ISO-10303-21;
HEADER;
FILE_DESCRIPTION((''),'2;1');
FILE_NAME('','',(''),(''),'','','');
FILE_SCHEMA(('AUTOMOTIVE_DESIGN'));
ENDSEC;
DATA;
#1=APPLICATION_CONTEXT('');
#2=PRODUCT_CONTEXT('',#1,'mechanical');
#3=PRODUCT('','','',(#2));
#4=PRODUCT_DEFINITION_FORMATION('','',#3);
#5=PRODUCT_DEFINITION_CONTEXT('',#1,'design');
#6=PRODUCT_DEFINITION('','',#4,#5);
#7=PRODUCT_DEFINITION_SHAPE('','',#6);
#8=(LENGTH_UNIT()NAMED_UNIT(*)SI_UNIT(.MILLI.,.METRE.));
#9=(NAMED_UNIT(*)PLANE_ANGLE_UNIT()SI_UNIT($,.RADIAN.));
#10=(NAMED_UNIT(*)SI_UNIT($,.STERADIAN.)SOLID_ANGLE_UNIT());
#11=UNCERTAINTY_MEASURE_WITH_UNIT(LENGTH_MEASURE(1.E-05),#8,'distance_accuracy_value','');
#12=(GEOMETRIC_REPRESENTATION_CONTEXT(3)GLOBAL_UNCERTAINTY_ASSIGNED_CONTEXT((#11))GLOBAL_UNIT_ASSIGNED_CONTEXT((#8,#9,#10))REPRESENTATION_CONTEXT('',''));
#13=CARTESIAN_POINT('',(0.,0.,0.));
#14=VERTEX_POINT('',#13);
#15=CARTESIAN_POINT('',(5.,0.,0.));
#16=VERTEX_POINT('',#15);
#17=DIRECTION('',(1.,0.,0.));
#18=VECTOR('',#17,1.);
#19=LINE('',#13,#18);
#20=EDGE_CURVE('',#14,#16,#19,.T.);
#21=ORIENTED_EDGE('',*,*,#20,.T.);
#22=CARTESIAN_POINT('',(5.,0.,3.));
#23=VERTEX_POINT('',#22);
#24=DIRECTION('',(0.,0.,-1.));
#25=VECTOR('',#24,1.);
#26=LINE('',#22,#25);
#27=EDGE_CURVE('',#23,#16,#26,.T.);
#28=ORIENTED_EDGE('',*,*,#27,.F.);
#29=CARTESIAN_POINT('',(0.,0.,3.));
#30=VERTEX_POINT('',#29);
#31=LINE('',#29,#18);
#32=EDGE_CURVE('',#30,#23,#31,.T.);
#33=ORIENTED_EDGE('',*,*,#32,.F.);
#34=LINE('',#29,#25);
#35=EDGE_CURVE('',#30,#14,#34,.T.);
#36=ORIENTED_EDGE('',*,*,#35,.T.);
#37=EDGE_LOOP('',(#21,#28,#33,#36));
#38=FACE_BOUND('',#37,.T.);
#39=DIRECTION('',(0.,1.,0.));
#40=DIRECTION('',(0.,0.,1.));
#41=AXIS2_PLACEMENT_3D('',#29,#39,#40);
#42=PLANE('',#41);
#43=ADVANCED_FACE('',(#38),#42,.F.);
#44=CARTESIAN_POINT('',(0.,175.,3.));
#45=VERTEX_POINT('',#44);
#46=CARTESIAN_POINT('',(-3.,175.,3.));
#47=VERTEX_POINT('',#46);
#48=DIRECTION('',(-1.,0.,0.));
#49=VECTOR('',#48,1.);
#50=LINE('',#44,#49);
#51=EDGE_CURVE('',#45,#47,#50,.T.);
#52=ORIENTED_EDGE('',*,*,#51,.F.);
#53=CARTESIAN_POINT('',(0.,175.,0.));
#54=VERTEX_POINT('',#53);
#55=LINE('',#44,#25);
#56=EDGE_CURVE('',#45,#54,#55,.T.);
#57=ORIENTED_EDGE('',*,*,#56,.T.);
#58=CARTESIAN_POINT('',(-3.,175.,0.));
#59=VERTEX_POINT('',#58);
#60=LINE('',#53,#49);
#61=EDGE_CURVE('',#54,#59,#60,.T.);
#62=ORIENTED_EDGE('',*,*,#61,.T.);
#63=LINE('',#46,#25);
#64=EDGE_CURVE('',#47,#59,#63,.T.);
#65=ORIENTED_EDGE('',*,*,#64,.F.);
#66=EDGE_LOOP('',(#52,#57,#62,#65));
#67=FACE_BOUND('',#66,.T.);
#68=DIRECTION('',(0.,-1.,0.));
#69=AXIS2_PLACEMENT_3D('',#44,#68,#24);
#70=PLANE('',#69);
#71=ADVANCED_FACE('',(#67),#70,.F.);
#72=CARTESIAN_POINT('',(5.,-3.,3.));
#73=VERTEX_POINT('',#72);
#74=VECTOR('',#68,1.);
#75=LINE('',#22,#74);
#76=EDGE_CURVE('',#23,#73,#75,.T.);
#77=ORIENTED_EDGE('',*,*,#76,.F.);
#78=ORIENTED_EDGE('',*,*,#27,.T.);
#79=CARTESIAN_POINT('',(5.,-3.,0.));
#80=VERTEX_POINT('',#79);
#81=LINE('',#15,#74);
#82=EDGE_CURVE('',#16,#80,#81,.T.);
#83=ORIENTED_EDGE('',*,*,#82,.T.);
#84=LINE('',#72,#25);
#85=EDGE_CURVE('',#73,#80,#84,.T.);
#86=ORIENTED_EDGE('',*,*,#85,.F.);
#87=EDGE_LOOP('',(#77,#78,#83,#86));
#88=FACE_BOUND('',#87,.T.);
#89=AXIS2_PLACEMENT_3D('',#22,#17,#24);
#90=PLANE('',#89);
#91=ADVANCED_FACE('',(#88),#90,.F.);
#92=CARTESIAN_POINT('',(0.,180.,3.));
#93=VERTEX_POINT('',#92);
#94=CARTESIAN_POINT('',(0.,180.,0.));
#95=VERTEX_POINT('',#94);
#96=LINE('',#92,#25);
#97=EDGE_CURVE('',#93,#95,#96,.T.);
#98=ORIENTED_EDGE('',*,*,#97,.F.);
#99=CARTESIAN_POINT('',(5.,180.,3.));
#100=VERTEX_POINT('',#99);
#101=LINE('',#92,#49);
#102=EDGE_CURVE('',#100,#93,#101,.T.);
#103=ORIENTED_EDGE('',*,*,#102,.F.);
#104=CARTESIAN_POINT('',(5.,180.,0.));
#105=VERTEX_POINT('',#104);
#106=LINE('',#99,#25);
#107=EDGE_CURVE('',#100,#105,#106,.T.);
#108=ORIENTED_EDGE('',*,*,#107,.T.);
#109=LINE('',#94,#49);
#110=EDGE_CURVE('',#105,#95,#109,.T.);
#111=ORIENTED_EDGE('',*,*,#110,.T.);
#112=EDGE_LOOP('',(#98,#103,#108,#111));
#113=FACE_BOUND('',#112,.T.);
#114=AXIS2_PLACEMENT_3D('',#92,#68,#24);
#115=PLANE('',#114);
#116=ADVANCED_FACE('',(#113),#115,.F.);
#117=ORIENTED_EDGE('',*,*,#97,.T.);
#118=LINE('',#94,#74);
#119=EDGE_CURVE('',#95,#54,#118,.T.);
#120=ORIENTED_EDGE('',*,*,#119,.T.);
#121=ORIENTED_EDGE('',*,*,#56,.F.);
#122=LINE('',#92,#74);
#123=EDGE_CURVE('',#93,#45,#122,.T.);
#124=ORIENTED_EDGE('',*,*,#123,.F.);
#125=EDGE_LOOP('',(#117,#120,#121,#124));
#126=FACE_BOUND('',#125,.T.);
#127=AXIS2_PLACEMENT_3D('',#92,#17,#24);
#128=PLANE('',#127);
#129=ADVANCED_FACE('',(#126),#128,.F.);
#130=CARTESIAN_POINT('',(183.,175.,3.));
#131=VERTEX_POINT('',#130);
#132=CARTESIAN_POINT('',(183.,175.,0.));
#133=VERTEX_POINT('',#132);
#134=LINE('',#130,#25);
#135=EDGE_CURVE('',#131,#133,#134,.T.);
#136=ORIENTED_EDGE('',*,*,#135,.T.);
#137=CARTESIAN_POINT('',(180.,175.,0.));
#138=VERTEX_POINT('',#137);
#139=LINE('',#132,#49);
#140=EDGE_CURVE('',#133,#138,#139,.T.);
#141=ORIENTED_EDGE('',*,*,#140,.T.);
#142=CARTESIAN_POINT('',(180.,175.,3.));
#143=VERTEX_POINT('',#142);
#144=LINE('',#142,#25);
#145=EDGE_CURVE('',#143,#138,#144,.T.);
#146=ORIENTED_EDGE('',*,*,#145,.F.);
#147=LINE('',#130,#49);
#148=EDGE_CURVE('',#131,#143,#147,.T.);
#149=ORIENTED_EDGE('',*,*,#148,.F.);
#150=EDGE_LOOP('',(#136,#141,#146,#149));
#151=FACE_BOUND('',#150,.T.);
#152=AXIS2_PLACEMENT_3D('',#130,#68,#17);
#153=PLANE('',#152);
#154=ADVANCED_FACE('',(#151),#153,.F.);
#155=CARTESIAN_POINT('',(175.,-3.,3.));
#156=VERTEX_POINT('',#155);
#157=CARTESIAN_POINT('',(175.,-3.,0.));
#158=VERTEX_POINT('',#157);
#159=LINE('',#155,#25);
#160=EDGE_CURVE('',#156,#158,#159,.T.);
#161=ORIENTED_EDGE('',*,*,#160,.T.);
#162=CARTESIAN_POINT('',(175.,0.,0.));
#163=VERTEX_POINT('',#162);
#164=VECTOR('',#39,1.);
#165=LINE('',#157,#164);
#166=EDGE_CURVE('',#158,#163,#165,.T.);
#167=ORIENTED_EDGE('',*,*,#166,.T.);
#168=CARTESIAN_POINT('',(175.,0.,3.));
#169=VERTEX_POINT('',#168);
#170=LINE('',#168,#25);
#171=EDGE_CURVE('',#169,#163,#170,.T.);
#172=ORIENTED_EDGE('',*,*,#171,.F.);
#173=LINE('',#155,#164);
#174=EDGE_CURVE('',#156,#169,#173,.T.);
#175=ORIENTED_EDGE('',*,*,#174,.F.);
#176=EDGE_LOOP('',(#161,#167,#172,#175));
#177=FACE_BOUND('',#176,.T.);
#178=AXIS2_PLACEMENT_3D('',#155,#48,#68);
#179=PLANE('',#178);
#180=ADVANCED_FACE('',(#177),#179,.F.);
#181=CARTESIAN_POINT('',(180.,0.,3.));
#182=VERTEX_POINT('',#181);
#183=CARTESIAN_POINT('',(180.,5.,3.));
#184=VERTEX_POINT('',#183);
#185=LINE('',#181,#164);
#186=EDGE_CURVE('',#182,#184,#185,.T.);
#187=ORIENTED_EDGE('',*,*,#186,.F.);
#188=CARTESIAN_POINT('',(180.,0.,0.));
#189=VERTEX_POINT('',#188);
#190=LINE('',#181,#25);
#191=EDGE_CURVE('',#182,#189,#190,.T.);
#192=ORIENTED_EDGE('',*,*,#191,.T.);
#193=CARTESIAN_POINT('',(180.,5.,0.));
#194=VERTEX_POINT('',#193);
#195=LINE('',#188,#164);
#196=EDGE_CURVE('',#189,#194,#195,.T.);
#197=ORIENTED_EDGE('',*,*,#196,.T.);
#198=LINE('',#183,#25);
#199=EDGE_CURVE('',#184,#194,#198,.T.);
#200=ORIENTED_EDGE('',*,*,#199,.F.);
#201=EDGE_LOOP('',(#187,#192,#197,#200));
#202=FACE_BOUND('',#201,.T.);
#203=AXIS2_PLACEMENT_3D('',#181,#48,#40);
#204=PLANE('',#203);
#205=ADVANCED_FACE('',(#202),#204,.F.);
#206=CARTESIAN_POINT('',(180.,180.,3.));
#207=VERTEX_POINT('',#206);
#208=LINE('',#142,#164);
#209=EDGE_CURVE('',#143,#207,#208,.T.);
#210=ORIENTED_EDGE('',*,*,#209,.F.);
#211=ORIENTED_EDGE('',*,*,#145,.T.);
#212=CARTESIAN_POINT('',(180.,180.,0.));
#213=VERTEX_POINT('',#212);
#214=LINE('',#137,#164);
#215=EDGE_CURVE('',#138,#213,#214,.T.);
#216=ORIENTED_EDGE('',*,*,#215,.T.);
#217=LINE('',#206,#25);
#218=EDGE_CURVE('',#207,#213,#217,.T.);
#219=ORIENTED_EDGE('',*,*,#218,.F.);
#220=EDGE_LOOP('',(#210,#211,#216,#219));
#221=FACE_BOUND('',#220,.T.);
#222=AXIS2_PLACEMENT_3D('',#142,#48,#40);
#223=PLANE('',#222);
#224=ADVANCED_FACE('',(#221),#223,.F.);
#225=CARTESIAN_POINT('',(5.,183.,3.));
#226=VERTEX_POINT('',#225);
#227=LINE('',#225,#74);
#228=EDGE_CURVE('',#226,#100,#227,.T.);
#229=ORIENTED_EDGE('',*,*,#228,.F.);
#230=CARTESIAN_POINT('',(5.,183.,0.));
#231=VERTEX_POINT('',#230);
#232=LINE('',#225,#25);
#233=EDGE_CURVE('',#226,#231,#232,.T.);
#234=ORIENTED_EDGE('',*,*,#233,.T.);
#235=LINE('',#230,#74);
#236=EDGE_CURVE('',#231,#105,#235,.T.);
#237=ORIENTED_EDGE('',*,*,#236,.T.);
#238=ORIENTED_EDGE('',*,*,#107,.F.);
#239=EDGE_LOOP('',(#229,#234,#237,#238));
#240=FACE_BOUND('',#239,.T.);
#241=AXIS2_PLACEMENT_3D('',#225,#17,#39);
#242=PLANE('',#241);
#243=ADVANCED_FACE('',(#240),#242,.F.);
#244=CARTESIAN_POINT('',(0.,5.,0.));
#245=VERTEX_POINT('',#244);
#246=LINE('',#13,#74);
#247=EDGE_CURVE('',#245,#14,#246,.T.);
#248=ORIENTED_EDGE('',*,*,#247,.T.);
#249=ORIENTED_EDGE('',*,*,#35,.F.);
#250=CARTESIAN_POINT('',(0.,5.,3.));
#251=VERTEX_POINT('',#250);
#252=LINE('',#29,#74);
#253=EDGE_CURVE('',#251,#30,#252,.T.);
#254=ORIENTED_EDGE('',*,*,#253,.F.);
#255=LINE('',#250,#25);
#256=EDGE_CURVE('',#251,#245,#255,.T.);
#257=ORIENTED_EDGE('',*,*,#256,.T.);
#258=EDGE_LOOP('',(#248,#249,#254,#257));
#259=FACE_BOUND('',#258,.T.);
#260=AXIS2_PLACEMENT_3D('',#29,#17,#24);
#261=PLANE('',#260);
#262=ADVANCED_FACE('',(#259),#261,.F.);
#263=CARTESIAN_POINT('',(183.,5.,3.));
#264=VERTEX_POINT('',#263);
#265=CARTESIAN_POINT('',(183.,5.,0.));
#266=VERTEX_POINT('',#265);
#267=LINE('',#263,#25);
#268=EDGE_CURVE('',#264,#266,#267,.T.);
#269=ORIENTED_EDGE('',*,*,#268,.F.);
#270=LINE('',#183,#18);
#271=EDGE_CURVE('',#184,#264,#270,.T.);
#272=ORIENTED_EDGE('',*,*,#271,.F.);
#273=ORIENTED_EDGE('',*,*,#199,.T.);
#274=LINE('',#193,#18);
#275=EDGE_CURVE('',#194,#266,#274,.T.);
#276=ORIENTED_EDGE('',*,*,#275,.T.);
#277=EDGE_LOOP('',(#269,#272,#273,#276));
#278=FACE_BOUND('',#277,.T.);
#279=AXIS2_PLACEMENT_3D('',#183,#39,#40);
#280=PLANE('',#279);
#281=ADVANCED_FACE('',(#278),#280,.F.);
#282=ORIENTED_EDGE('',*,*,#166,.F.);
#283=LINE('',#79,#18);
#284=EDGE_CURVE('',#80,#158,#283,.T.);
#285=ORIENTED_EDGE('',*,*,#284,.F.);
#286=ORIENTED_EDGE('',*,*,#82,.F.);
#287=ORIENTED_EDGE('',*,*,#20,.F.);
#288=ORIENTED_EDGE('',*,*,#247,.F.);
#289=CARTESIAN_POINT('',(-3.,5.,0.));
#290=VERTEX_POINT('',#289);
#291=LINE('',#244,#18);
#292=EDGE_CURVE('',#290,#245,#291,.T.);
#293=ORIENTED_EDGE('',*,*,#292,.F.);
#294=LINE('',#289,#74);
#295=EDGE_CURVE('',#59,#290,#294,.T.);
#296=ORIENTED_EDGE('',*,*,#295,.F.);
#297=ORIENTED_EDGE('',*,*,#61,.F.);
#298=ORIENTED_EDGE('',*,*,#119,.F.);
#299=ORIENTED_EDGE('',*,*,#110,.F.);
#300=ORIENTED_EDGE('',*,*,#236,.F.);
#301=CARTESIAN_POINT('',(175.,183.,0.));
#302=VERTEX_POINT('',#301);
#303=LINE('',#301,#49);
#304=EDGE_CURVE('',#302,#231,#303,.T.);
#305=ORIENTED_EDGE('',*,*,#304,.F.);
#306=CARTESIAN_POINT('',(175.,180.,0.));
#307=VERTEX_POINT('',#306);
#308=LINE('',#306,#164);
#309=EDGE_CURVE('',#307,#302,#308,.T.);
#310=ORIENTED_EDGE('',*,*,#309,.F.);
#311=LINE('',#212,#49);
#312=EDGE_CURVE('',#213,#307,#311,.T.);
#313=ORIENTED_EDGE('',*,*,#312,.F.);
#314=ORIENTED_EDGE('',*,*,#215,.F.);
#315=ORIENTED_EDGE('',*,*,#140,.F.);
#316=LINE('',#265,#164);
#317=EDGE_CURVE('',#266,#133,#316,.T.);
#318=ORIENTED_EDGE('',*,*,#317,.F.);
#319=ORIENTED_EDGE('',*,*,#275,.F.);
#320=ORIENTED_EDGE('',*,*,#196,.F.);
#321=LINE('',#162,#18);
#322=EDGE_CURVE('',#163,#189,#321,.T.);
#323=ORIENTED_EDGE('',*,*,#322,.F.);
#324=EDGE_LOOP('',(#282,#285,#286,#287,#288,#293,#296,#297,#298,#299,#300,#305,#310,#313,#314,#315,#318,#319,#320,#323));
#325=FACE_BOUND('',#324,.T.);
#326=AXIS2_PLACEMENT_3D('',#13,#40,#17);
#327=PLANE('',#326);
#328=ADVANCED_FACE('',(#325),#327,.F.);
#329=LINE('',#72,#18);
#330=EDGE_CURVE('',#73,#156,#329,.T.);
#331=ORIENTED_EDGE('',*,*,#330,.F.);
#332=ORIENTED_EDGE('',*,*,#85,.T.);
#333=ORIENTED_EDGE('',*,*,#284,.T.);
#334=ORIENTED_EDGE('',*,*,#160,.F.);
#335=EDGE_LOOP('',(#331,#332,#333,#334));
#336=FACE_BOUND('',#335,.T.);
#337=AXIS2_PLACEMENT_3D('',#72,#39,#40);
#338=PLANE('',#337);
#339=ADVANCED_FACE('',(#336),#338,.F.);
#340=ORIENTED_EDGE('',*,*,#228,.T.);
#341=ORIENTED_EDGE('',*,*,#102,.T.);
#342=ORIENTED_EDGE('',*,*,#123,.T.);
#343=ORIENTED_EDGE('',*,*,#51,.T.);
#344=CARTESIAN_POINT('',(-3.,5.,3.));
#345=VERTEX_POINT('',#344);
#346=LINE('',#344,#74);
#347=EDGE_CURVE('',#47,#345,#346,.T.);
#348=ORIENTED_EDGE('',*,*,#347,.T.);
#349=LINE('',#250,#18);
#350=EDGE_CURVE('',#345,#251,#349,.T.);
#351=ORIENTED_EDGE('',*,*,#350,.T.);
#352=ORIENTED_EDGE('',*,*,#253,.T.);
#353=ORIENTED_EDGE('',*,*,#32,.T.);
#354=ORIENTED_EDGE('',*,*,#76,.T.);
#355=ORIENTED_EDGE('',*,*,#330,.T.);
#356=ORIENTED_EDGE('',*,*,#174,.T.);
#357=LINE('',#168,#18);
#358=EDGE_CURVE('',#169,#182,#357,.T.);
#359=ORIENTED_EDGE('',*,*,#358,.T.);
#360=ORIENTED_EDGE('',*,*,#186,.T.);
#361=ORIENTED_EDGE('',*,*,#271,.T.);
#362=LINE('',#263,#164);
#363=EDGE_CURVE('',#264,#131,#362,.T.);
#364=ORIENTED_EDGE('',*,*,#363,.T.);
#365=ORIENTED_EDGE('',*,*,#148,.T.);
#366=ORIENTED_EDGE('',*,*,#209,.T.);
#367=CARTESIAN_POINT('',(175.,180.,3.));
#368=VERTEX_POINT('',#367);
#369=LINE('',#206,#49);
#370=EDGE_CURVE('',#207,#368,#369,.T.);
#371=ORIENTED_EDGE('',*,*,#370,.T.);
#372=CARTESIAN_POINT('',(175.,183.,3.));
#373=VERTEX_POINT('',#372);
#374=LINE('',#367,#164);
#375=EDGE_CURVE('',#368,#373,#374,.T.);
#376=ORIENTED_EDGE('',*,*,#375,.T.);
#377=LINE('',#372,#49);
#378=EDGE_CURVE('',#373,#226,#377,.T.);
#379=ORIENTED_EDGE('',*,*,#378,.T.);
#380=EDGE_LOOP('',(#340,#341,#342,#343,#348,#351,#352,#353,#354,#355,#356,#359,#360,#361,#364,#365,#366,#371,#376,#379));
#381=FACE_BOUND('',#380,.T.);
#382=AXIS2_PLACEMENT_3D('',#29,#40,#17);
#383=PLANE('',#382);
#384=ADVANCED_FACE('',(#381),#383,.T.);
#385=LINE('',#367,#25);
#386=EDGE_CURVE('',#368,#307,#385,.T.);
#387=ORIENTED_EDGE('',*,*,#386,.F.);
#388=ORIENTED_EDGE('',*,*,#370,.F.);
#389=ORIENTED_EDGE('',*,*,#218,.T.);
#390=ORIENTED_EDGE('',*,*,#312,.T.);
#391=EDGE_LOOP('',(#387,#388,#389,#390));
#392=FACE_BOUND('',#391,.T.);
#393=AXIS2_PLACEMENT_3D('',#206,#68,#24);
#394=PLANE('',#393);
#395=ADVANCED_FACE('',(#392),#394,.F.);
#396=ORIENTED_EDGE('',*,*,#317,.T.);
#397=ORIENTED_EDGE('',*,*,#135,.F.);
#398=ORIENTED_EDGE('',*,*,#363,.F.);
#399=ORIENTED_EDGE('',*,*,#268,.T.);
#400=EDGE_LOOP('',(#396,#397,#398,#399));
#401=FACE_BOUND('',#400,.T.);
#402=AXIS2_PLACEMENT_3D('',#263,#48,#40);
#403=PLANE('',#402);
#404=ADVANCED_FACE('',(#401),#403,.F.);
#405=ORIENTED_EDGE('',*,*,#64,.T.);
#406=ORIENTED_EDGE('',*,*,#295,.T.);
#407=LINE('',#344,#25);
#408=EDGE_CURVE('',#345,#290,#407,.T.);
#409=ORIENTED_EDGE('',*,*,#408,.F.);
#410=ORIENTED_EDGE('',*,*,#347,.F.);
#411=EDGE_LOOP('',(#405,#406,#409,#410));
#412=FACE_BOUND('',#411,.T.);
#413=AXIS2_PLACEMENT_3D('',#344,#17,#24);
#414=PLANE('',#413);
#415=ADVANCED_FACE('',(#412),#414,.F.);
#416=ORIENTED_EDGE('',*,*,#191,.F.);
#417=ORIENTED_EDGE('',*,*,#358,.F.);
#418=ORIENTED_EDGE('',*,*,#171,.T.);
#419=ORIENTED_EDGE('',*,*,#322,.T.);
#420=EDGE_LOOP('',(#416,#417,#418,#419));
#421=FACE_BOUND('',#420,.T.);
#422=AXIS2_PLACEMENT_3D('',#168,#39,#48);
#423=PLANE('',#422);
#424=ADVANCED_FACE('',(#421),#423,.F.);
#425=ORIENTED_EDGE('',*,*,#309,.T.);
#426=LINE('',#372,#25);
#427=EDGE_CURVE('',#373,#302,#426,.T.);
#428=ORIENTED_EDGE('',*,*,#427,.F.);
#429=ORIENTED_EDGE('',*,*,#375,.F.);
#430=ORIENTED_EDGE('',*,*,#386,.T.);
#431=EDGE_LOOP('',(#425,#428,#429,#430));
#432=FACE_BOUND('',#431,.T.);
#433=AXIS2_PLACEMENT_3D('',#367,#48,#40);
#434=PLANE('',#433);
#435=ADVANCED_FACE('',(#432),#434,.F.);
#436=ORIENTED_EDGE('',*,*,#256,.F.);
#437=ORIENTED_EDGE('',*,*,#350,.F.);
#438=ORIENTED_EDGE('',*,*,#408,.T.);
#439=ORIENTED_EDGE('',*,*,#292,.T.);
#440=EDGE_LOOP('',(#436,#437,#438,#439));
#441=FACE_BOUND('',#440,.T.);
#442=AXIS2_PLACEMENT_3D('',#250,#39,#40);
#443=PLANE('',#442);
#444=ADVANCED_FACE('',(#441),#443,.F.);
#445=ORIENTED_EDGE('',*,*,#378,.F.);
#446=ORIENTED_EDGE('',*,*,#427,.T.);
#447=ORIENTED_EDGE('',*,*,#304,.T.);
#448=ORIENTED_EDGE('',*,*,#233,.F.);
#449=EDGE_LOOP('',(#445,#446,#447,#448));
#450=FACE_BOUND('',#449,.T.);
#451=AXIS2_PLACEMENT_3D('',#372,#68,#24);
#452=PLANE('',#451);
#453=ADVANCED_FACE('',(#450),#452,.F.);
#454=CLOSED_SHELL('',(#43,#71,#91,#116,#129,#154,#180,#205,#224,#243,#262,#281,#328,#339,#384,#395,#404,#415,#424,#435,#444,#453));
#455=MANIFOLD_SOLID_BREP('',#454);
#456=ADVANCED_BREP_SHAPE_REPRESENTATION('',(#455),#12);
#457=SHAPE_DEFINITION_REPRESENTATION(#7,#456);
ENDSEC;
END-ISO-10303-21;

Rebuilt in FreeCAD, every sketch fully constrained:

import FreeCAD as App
import Part
import Sketcher
from FreeCAD import Vector
Q = App.Units.Quantity

doc = App.newDocument("Part")
body = doc.addObject("PartDesign::Body", "Body")

sketch1 = doc.addObject("Sketcher::SketchObject", "Sketch")
body.addObject(sketch1)
sketch1.AttachmentSupport = (doc.XY_Plane, [""])
sketch1.MapMode = "FlatFace"
sketch1.addGeometry(Part.LineSegment(Vector(0, 180, 0), Vector(0, 175, 0)), False)
sketch1.addGeometry(Part.LineSegment(Vector(0, 175, 0), Vector(-3, 175, 0)), False)
sketch1.addGeometry(Part.LineSegment(Vector(-3, 175, 0), Vector(-3, 5, 0)), False)
sketch1.addGeometry(Part.LineSegment(Vector(-3, 5, 0), Vector(0, 5, 0)), False)
sketch1.addGeometry(Part.LineSegment(Vector(0, 5, 0), Vector(0, 0, 0)), False)
sketch1.addGeometry(Part.LineSegment(Vector(0, 0, 0), Vector(5, 0, 0)), False)
sketch1.addGeometry(Part.LineSegment(Vector(5, 0, 0), Vector(5, -3, 0)), False)
sketch1.addGeometry(Part.LineSegment(Vector(5, -3, 0), Vector(175, -3, 0)), False)
sketch1.addGeometry(Part.LineSegment(Vector(175, -3, 0), Vector(175, 0, 0)), False)
sketch1.addGeometry(Part.LineSegment(Vector(175, 0, 0), Vector(180, 0, 0)), False)
sketch1.addGeometry(Part.LineSegment(Vector(180, 0, 0), Vector(180, 5, 0)), False)
sketch1.addGeometry(Part.LineSegment(Vector(180, 5, 0), Vector(183, 5, 0)), False)
sketch1.addGeometry(Part.LineSegment(Vector(183, 5, 0), Vector(183, 175, 0)), False)
sketch1.addGeometry(Part.LineSegment(Vector(183, 175, 0), Vector(180, 175, 0)), False)
sketch1.addGeometry(Part.LineSegment(Vector(180, 175, 0), Vector(180, 180, 0)), False)
sketch1.addGeometry(Part.LineSegment(Vector(180, 180, 0), Vector(175, 180, 0)), False)
sketch1.addGeometry(Part.LineSegment(Vector(175, 180, 0), Vector(175, 183, 0)), False)
sketch1.addGeometry(Part.LineSegment(Vector(175, 183, 0), Vector(5, 183, 0)), False)
sketch1.addGeometry(Part.LineSegment(Vector(5, 183, 0), Vector(5, 180, 0)), False)
sketch1.addGeometry(Part.LineSegment(Vector(5, 180, 0), Vector(0, 180, 0)), False)
sketch1.addConstraint(Sketcher.Constraint("Coincident", 0, 2, 1, 1))
sketch1.addConstraint(Sketcher.Constraint("Coincident", 1, 2, 2, 1))
sketch1.addConstraint(Sketcher.Constraint("Coincident", 2, 2, 3, 1))
sketch1.addConstraint(Sketcher.Constraint("Coincident", 3, 2, 4, 1))
sketch1.addConstraint(Sketcher.Constraint("Coincident", 4, 2, 5, 1))
sketch1.addConstraint(Sketcher.Constraint("Coincident", 5, 2, 6, 1))
sketch1.addConstraint(Sketcher.Constraint("Coincident", 6, 2, 7, 1))
sketch1.addConstraint(Sketcher.Constraint("Coincident", 7, 2, 8, 1))
sketch1.addConstraint(Sketcher.Constraint("Coincident", 8, 2, 9, 1))
sketch1.addConstraint(Sketcher.Constraint("Coincident", 9, 2, 10, 1))
sketch1.addConstraint(Sketcher.Constraint("Coincident", 10, 2, 11, 1))
sketch1.addConstraint(Sketcher.Constraint("Coincident", 11, 2, 12, 1))
sketch1.addConstraint(Sketcher.Constraint("Coincident", 12, 2, 13, 1))
sketch1.addConstraint(Sketcher.Constraint("Coincident", 13, 2, 14, 1))
sketch1.addConstraint(Sketcher.Constraint("Coincident", 14, 2, 15, 1))
sketch1.addConstraint(Sketcher.Constraint("Coincident", 15, 2, 16, 1))
sketch1.addConstraint(Sketcher.Constraint("Coincident", 16, 2, 17, 1))
sketch1.addConstraint(Sketcher.Constraint("Coincident", 17, 2, 18, 1))
sketch1.addConstraint(Sketcher.Constraint("Coincident", 18, 2, 19, 1))
sketch1.addConstraint(Sketcher.Constraint("Coincident", 19, 2, 0, 1))
sketch1.addConstraint(Sketcher.Constraint("Vertical", 0))
sketch1.addConstraint(Sketcher.Constraint("Horizontal", 1))
sketch1.addConstraint(Sketcher.Constraint("Vertical", 2))
sketch1.addConstraint(Sketcher.Constraint("Horizontal", 3))
sketch1.addConstraint(Sketcher.Constraint("Vertical", 4))
sketch1.addConstraint(Sketcher.Constraint("Horizontal", 5))
sketch1.addConstraint(Sketcher.Constraint("Vertical", 6))
sketch1.addConstraint(Sketcher.Constraint("Horizontal", 7))
sketch1.addConstraint(Sketcher.Constraint("Vertical", 8))
sketch1.addConstraint(Sketcher.Constraint("Horizontal", 9))
sketch1.addConstraint(Sketcher.Constraint("Vertical", 10))
sketch1.addConstraint(Sketcher.Constraint("Horizontal", 11))
sketch1.addConstraint(Sketcher.Constraint("Vertical", 12))
sketch1.addConstraint(Sketcher.Constraint("Horizontal", 13))
sketch1.addConstraint(Sketcher.Constraint("Vertical", 14))
sketch1.addConstraint(Sketcher.Constraint("Horizontal", 15))
sketch1.addConstraint(Sketcher.Constraint("Vertical", 16))
sketch1.addConstraint(Sketcher.Constraint("Horizontal", 17))
sketch1.addConstraint(Sketcher.Constraint("Vertical", 18))
sketch1.addConstraint(Sketcher.Constraint("Horizontal", 19))
sketch1.addConstraint(Sketcher.Constraint("Coincident", 4, 2, -1, 1))
sketch1.addConstraint(Sketcher.Constraint("PointOnObject", 0, 2, -2))
sketch1.addConstraint(Sketcher.Constraint("PointOnObject", 8, 2, -1))
sketch1.addConstraint(Sketcher.Constraint("Horizontal", 3, 2, 10, 2))
sketch1.addConstraint(Sketcher.Constraint("Horizontal", 1, 2, 12, 2))
sketch1.addConstraint(Sketcher.Constraint("Horizontal", 15, 2, 18, 2))
sketch1.addConstraint(Sketcher.Constraint("Vertical", 10, 2, 13, 2))
sketch1.addConstraint(Sketcher.Constraint("Vertical", 8, 2, 15, 2))
sketch1.addConstraint(Sketcher.Constraint("Vertical", 6, 2, 17, 2))
sketch1.addConstraint(Sketcher.Constraint("Equal", 5, 9))
sketch1.addConstraint(Sketcher.Constraint("Equal", 3, 11))
sketch1.addConstraint(Sketcher.Constraint("Equal", 19, 0))
sketch1.addConstraint(Sketcher.Constraint("Equal", 17, 2))
sketch1.addConstraint(Sketcher.Constraint("Equal", 0, 4))
sketch1.addConstraint(Sketcher.Constraint("Equal", 13, 6))
sketch1.addConstraint(Sketcher.Constraint("Equal", 8, 16))
sketch1.addConstraint(Sketcher.Constraint("DistanceX", 1, 2, 1, 1, Q("3 mm")))
sketch1.addConstraint(Sketcher.Constraint("DistanceX", 5, 1, 5, 2, Q("5 mm")))
sketch1.addConstraint(Sketcher.Constraint("DistanceX", 7, 1, 7, 2, Q("170 mm")))
pad1 = doc.addObject("PartDesign::Pad", "Pad")
body.addObject(pad1)
pad1.Profile = sketch1
pad1.Length = 3

doc.recompute()
